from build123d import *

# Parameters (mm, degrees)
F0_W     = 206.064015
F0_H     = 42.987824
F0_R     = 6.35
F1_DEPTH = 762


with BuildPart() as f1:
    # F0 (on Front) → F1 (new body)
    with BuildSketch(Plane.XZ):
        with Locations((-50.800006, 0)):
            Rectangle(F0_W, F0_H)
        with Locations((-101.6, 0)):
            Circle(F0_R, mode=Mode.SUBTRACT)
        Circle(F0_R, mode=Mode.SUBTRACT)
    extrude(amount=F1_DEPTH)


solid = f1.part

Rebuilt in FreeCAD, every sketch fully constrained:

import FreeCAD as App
import Part
import Sketcher
Q = App.Units.Quantity


def add_polygon(sketch, points):
    """Adds a closed chain of lines whose ends are joined by coincident constraints."""
    first, n = sketch.GeometryCount, len(points)
    for a, b in zip(points, points[1:] + points[:1]):
        sketch.addGeometry(Part.LineSegment(App.Vector(*a, 0), App.Vector(*b, 0)), False)
    for i in range(n):
        sketch.addConstraint(Sketcher.Constraint("Coincident", first + i, 2, first + (i + 1) % n, 1))

doc = App.newDocument("Part")
body = doc.addObject("PartDesign::Body", "Body")

# Sketch on XZ plane
sketch1 = body.newObject("Sketcher::SketchObject", "Sketch")
sketch1.AttachmentSupport = (doc.getObject("XZ_Plane"), [""])
sketch1.MapMode = "FlatFace"
add_polygon(sketch1, [(-154, 21), (-154, -21), (52, -21), (52, 21)])  # lines 0-3
sketch1.addGeometry(Part.Circle(App.Vector(-102, 0, 0), App.Vector(0, 0, 1), 6), False)  # 4
sketch1.addGeometry(Part.Circle(App.Vector(0, 0, 0), App.Vector(0, 0, 1), 6), False)  # 5
sketch1.addConstraint(Sketcher.Constraint("Vertical", 0))
sketch1.addConstraint(Sketcher.Constraint("Horizontal", 1))
sketch1.addConstraint(Sketcher.Constraint("Vertical", 2))
sketch1.addConstraint(Sketcher.Constraint("Horizontal", 3))
sketch1.addConstraint(Sketcher.Constraint("Coincident", 5, 3, -1, 1))
sketch1.addConstraint(Sketcher.Constraint("Equal", 4, 5))
sketch1.addConstraint(Sketcher.Constraint("PointOnObject", 4, 3, -1))
sketch1.addConstraint(Sketcher.Constraint("Diameter", 4, Q("0.5 in")))
sketch1.addConstraint(Sketcher.Constraint("DistanceX", 4, 3, -1, 1, Q("4 in")))
sketch1.addConstraint(Sketcher.Constraint("DistanceX", -1, 1, 1, 2, Q("52.232002 mm")))
sketch1.addConstraint(Sketcher.Constraint("DistanceX", 1, 1, 1, 2, Q("206.064015 mm")))
sketch1.addConstraint(Sketcher.Constraint("DistanceY", 0, 2, 0, 1, Q("42.987824 mm")))
sketch1.addConstraint(Sketcher.Constraint("DistanceY", 0, 2, -1, 1, Q("21.493912 mm")))
pad1 = body.newObject("PartDesign::Pad", "Pad")
pad1.Profile = sketch1
pad1.Length = Q("30 in")

doc.recompute()
